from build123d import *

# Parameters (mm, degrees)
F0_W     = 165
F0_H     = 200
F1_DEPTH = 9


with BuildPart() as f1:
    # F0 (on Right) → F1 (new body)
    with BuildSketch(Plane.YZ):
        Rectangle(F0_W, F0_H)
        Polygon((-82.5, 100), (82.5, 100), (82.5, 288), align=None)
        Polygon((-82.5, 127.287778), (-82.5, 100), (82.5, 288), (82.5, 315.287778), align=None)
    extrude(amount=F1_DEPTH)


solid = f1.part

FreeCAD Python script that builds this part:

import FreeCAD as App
import Part
import Sketcher

V = App.Vector
Q = App.Units.Quantity


def add_polygon(sketch, points):
    """Adds a closed chain of lines whose ends are joined by coincident constraints."""
    first, n = sketch.GeometryCount, len(points)
    for a, b in zip(points, points[1:] + points[:1]):
        sketch.addGeometry(Part.LineSegment(App.Vector(*a, 0), App.Vector(*b, 0)), False)
    for i in range(n):
        sketch.addConstraint(Sketcher.Constraint("Coincident", first + i, 2, first + (i + 1) % n, 1))

doc = App.newDocument("Part")
params = doc.addObject("Spreadsheet::Sheet", "Params")
for row, (alias, value) in enumerate([
    ("sketch1_width", "165 mm"),
    ("pad1_length", "9 mm"),
], start=1):
    params.set(f"A{row}", alias)
    params.set(f"B{row}", "=" + value)
    params.setAlias(f"B{row}", alias)

body = doc.addObject("PartDesign::Body", "Body")

# Sketch on YZ plane
sketch1 = body.newObject("Sketcher::SketchObject", "Sketch")
sketch1.AttachmentSupport = (doc.getObject("YZ_Plane"), [""])
sketch1.MapMode = "FlatFace"
add_polygon(sketch1, [(-82, -100), (82, -100), (82, 315), (-82, 127)])  # lines 0-3
sketch1.addConstraint([
    Sketcher.Constraint("Horizontal", 0),
    Sketcher.Constraint("Vertical", 1),
    Sketcher.Constraint("Vertical", 3),
    Sketcher.Constraint("DistanceX", 0, 1, 0, 2, Q("165 mm")),
    Sketcher.Constraint("DistanceY", 0, 2, -1, 1, Q("100 mm")),
    Sketcher.Constraint("DistanceY", 2, 2, 1, 2, Q("188 mm")),
    Sketcher.Constraint("DistanceX", -1, 1, 0, 2, Q("82.5 mm")),
    Sketcher.Constraint("DistanceY", 1, 1, 1, 2, Q("415.287778 mm")),
])
sketch1.setExpression("Constraints[7]", "Params.sketch1_width")
pad1 = body.newObject("PartDesign::Pad", "Pad")
pad1.Profile = sketch1
pad1.setExpression("Length", "Params.pad1_length")

doc.recompute()
